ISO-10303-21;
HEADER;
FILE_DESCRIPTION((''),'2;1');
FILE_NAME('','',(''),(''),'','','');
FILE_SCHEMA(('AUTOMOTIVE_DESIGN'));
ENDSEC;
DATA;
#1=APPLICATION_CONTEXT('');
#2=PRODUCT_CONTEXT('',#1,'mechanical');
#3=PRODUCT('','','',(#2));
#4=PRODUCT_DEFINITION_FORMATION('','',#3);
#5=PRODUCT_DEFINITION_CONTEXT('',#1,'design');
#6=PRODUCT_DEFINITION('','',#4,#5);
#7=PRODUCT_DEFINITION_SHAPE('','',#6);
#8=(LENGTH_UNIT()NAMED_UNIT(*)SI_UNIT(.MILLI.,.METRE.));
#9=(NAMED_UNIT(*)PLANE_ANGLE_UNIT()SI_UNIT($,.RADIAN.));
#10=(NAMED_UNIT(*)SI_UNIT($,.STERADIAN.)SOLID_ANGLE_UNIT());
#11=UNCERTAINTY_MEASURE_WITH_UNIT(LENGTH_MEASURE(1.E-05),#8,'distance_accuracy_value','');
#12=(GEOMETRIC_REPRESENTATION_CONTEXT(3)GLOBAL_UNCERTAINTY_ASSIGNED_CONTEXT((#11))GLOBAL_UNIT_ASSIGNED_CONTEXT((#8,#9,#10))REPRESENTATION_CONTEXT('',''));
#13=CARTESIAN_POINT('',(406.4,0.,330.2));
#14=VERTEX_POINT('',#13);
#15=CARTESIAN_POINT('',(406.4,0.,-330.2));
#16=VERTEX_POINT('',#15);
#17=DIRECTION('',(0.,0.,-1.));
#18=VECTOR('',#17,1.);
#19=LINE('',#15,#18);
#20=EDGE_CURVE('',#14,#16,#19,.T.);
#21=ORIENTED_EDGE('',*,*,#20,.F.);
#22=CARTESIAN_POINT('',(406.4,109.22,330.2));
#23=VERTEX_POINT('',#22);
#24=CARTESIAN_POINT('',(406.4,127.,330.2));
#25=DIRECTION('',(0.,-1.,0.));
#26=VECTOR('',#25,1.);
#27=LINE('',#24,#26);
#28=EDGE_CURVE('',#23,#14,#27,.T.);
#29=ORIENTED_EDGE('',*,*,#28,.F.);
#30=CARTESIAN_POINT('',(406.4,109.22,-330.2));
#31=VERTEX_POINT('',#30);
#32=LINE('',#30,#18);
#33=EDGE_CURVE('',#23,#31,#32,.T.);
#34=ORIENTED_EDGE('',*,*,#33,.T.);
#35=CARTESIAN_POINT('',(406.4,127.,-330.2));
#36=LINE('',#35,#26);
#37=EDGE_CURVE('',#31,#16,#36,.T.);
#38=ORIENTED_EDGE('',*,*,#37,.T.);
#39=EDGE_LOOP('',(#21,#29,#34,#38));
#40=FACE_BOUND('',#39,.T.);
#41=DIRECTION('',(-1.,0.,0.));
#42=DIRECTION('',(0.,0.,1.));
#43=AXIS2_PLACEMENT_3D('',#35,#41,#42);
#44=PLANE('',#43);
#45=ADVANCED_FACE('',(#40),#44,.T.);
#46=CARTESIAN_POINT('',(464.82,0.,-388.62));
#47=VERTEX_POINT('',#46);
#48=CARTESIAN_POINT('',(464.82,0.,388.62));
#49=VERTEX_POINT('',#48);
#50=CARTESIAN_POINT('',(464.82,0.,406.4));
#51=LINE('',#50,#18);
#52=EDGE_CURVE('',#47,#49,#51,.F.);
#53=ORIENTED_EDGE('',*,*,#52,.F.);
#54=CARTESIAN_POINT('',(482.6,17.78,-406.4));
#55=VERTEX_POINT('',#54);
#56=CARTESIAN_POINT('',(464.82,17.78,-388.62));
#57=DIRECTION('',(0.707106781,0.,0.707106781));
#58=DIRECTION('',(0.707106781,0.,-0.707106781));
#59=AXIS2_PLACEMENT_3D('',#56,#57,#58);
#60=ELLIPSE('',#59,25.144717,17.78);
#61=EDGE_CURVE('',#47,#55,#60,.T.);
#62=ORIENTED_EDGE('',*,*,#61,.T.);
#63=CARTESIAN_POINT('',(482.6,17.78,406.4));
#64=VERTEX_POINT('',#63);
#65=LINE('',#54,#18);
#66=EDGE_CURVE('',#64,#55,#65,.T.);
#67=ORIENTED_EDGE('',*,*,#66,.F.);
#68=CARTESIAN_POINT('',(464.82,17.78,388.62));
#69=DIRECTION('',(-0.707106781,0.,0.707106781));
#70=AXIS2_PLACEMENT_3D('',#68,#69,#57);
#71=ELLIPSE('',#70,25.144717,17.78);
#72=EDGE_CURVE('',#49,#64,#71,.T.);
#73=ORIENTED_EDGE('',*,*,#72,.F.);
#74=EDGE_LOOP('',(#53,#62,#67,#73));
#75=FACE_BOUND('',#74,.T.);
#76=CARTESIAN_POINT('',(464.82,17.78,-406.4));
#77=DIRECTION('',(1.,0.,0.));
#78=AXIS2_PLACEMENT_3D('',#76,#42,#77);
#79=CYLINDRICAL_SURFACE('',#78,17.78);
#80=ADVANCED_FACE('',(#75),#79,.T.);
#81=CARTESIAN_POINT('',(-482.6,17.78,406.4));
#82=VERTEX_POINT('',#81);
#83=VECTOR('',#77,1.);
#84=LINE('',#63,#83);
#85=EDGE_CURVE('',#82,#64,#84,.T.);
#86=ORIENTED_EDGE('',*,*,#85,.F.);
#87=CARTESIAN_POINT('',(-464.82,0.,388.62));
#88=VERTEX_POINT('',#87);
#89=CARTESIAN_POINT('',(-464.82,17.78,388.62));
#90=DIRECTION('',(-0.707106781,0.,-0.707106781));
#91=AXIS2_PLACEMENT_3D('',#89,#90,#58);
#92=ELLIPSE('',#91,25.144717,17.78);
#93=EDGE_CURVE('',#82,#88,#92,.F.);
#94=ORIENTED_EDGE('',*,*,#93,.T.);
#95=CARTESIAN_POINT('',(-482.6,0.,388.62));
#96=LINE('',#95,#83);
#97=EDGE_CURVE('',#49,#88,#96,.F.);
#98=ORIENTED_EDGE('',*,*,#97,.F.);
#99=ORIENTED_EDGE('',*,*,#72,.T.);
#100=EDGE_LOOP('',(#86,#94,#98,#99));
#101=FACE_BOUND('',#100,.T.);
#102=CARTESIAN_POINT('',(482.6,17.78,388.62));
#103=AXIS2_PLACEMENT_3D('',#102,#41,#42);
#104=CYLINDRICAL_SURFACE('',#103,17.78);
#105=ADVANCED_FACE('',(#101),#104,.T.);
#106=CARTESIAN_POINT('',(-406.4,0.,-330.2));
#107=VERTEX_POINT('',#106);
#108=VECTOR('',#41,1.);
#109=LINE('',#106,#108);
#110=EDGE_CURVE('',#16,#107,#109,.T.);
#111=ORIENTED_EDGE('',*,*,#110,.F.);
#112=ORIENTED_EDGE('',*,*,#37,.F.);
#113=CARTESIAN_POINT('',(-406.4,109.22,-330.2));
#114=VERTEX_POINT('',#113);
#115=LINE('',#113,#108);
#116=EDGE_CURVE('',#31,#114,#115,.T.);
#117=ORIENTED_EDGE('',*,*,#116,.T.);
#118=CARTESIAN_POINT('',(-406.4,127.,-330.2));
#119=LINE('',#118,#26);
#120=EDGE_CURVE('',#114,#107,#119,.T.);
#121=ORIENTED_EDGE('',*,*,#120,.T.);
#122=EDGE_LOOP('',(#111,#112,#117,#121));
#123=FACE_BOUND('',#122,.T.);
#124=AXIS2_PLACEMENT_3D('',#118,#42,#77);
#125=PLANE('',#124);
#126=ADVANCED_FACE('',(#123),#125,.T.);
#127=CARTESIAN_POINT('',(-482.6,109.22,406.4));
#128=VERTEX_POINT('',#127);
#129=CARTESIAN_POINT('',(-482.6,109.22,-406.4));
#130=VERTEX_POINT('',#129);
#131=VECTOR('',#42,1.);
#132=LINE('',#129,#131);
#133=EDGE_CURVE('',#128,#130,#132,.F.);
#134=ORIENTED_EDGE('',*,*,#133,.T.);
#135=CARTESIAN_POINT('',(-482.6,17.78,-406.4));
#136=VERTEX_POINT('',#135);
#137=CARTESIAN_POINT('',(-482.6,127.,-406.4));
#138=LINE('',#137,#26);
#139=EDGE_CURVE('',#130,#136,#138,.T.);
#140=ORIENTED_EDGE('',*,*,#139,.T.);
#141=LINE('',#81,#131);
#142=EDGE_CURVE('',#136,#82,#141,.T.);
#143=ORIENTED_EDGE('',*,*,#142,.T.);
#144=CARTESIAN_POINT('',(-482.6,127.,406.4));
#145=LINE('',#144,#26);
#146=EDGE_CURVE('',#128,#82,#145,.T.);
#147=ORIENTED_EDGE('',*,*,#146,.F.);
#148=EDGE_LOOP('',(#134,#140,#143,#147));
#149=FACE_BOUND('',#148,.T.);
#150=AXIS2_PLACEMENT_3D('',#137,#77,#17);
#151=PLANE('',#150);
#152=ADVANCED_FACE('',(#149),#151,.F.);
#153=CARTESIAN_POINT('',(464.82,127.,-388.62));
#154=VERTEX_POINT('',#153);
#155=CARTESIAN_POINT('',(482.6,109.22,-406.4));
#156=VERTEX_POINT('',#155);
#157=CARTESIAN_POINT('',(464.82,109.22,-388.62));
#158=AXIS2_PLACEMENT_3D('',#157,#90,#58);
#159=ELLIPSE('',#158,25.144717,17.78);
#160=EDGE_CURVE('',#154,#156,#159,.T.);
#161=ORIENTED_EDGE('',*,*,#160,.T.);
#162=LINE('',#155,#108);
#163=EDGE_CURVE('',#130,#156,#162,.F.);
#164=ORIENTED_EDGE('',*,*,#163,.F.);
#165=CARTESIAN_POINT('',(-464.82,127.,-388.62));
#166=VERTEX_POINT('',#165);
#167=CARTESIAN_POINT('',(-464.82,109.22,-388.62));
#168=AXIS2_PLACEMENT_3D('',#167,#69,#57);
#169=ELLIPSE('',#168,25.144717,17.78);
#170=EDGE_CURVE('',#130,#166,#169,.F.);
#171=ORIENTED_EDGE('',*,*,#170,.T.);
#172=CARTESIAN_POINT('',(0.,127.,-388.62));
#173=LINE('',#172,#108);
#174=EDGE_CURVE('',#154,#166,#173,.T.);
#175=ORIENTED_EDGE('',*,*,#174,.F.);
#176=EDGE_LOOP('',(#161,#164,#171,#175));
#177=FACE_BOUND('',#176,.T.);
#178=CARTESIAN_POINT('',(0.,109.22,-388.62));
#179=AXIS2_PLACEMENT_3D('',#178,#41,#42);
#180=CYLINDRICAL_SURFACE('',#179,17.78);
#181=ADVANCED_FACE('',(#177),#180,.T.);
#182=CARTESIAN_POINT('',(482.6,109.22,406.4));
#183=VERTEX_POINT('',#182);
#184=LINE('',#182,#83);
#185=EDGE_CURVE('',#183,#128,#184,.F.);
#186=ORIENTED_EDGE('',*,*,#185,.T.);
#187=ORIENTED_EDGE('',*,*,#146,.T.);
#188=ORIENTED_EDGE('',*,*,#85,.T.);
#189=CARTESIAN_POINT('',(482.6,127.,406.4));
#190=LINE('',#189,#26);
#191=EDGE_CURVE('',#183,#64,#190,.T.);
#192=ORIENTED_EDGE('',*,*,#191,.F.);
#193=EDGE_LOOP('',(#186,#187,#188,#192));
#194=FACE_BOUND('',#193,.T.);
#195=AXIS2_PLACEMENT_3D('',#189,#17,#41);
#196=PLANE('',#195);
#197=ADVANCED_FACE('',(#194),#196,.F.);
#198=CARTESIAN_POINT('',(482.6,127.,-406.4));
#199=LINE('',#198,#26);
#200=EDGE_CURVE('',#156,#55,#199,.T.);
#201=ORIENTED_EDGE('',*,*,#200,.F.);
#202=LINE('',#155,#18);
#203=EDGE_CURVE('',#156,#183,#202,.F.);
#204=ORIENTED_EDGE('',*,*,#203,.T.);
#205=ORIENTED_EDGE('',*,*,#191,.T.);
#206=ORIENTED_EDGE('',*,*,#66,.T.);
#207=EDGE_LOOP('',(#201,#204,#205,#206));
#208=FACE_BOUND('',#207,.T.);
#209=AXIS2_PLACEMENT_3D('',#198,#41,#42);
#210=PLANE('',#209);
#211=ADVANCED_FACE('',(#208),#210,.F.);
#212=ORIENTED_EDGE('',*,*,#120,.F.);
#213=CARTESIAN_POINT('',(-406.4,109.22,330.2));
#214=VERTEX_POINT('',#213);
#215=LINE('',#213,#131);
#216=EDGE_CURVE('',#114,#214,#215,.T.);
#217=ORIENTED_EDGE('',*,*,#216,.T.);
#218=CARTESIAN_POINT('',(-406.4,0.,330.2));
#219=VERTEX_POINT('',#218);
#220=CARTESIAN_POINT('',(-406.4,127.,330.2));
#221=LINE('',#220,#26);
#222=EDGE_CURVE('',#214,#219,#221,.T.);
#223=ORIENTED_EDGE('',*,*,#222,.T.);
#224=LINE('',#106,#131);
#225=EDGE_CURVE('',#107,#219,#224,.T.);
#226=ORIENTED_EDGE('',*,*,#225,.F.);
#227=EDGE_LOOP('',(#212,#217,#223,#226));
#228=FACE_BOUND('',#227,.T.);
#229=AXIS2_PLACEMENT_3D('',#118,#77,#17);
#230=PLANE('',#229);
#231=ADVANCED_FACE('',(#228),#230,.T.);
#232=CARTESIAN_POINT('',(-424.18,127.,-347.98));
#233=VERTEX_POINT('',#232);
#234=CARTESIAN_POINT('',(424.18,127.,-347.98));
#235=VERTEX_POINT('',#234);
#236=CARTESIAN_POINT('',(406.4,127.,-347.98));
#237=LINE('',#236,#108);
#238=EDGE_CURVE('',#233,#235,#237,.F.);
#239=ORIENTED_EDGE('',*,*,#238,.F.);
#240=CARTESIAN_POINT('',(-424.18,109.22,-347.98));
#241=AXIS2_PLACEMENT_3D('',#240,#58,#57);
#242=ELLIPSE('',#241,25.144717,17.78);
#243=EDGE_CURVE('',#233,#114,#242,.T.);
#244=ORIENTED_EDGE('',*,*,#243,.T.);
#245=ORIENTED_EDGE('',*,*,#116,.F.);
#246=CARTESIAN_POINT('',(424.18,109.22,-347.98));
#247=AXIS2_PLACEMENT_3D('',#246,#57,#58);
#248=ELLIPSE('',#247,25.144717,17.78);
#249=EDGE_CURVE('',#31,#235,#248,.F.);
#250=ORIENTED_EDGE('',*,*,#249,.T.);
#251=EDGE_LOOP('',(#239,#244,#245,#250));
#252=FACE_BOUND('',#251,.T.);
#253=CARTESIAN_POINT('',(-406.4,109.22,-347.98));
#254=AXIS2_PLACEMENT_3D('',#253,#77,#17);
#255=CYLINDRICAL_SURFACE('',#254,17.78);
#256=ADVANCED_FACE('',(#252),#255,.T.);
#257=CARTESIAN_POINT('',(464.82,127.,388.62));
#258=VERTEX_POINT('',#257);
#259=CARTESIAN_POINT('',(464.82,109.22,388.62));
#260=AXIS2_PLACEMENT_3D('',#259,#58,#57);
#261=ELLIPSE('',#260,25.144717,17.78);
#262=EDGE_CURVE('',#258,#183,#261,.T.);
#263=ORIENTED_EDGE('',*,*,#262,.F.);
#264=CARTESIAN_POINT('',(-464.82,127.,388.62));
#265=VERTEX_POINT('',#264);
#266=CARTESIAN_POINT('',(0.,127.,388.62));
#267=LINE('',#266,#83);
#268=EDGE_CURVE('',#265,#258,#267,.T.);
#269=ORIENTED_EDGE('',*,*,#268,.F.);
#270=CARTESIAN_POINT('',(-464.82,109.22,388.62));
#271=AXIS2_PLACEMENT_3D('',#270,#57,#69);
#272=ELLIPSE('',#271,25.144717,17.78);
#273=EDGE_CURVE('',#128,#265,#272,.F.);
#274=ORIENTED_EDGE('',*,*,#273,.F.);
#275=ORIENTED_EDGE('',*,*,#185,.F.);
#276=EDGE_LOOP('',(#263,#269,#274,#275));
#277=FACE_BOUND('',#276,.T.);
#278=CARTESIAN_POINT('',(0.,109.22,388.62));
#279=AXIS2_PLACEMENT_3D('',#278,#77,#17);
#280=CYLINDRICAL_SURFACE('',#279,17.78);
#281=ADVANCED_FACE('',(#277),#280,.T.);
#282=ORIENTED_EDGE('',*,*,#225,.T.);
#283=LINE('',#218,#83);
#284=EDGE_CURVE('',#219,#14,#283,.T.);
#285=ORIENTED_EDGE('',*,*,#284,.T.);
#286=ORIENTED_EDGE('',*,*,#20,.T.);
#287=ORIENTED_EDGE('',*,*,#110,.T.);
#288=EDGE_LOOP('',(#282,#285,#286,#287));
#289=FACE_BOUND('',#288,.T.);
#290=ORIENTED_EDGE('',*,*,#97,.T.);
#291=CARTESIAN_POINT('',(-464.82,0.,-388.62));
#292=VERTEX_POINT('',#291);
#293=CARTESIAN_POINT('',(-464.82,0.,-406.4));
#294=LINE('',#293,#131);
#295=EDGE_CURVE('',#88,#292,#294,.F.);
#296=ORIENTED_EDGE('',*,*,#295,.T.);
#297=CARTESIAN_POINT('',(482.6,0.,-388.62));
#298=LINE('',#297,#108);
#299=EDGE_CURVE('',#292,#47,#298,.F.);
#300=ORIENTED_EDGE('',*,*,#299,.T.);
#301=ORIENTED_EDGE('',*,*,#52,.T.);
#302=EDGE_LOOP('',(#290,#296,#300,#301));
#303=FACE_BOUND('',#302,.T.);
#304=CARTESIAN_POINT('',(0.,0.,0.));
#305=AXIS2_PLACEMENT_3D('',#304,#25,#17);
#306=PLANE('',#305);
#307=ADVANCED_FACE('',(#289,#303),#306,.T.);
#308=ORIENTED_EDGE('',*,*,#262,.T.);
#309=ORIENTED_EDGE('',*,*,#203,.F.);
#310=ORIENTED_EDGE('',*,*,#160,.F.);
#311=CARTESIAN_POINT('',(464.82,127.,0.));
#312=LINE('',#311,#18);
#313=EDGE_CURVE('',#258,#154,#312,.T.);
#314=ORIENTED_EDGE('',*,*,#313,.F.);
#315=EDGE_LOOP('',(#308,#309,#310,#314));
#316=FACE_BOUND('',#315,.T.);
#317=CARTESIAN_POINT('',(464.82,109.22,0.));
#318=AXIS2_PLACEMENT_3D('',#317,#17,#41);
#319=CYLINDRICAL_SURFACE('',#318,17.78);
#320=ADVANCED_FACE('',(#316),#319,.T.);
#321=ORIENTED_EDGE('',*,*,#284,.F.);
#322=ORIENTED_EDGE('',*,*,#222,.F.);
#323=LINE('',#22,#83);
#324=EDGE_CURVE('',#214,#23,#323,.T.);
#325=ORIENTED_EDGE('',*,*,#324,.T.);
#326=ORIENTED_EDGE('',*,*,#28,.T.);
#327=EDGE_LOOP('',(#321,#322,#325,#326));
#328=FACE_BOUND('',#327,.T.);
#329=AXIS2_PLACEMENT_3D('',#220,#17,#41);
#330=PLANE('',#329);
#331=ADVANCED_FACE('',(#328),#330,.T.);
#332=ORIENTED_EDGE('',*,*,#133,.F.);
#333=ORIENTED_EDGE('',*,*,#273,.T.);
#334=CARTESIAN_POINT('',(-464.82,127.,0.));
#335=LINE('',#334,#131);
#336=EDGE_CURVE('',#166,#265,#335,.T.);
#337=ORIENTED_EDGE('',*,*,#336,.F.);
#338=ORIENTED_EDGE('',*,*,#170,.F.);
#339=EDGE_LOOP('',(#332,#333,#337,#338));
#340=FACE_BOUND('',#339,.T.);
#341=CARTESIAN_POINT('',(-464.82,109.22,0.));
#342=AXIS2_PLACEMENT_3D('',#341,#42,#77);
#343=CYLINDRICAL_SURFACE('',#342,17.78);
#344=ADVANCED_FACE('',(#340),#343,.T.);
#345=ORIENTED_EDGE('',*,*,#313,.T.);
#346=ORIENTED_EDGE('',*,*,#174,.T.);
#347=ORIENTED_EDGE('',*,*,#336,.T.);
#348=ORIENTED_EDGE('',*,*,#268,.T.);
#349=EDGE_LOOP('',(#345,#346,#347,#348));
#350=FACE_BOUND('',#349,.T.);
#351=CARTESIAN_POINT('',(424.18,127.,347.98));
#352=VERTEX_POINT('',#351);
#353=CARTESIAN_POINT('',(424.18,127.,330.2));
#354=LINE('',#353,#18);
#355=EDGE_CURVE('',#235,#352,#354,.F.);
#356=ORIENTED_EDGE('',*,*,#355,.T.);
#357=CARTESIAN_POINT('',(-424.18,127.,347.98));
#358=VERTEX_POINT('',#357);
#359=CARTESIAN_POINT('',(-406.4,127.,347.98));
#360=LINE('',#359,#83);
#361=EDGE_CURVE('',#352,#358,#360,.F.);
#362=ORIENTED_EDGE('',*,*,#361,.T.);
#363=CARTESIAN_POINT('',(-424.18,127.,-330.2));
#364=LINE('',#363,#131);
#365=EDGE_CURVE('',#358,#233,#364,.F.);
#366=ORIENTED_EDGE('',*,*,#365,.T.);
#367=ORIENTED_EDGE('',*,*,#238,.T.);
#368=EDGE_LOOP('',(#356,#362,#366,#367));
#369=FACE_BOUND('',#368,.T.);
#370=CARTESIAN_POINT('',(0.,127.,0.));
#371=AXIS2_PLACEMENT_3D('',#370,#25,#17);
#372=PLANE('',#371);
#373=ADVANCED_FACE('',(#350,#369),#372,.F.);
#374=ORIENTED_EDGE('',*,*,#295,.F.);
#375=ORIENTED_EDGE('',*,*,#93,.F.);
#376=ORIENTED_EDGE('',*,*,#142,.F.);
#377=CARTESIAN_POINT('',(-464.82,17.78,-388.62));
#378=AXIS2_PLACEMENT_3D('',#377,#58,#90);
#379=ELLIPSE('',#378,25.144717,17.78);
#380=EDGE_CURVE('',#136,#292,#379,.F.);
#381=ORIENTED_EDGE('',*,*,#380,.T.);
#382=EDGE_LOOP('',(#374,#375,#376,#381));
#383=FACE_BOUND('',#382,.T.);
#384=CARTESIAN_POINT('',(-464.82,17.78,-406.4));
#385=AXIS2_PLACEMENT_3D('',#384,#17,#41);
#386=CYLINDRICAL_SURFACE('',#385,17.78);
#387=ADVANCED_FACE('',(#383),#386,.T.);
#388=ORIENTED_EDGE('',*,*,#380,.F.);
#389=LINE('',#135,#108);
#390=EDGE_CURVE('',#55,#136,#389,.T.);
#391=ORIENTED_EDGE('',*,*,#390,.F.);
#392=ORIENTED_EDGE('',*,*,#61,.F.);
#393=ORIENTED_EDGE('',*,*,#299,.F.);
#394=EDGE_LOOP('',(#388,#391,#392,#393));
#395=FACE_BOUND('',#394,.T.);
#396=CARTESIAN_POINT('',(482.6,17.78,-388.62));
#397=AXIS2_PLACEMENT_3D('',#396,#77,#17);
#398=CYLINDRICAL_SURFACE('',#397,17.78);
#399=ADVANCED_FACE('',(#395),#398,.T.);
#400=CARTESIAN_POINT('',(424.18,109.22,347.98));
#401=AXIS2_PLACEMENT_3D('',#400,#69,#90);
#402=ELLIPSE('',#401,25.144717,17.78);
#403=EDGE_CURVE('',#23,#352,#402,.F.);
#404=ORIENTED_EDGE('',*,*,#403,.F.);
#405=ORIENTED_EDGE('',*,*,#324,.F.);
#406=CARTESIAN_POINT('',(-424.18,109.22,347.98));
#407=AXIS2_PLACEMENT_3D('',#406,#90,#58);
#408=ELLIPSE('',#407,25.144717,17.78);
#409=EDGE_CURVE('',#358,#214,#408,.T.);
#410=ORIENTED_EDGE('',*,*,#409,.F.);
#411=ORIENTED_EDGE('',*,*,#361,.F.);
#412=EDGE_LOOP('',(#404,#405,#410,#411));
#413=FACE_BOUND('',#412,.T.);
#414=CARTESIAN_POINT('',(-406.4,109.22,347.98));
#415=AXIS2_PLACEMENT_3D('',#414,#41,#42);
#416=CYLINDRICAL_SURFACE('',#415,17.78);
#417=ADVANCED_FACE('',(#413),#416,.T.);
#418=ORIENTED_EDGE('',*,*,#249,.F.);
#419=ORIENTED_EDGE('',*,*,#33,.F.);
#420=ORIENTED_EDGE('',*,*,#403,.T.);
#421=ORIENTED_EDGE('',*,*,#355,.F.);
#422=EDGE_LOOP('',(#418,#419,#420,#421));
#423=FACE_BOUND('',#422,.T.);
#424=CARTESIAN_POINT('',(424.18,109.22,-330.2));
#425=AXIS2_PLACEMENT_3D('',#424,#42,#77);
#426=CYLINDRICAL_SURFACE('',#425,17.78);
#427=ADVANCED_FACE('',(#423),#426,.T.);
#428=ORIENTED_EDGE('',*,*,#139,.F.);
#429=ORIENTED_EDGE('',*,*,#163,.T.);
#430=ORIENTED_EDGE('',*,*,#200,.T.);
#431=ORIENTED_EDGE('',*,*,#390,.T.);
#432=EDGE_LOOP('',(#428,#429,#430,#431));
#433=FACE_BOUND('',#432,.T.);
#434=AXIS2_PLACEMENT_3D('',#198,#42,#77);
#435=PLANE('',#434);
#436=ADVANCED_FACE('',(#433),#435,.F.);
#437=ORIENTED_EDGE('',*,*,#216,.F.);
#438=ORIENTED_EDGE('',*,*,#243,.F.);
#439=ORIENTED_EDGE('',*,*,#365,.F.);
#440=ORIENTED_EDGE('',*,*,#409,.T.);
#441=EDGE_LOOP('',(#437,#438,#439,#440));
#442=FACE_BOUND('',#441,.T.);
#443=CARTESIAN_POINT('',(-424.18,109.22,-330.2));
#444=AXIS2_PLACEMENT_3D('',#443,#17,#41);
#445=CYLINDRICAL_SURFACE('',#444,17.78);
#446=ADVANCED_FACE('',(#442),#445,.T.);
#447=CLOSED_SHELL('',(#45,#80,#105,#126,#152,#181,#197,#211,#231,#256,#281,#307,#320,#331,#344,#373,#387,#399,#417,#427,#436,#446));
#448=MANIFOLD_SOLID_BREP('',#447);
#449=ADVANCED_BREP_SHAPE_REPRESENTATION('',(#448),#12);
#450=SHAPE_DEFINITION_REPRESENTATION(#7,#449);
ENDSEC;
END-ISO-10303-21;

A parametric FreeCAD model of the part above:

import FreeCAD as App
import Part
import Sketcher

V = App.Vector
Q = App.Units.Quantity


def edges_at(feature, points):
    """Names of the edges that pass closest to the given points."""
    edges = feature.Shape.Edges
    near = lambda p: min(range(len(edges)), key=lambda i: edges[i].distToShape(Part.Vertex(*p))[0])
    return sorted({f"Edge{near(p) + 1}" for p in points})


def add_polygon(sketch, points):
    """Adds a closed chain of lines whose ends are joined by coincident constraints."""
    first, n = sketch.GeometryCount, len(points)
    for a, b in zip(points, points[1:] + points[:1]):
        sketch.addGeometry(Part.LineSegment(App.Vector(*a, 0), App.Vector(*b, 0)), False)
    for i in range(n):
        sketch.addConstraint(Sketcher.Constraint("Coincident", first + i, 2, first + (i + 1) % n, 1))

doc = App.newDocument("Part")
body = doc.addObject("PartDesign::Body", "Body")

sketch1 = doc.addObject("Sketcher::SketchObject", "Sketch")
body.addObject(sketch1)
sketch1.AttachmentSupport = (doc.XZ_Plane, [""])
sketch1.MapMode = "FlatFace"
add_polygon(sketch1, [(-482.6, -406.4), (-482.6, 406.4), (482.6, 406.4), (482.6, -406.4)])
add_polygon(sketch1, [(406.4, 330.2), (-406.4, 330.2), (-406.4, -330.2), (406.4, -330.2)])
sketch1.addConstraint([
    Sketcher.Constraint("Vertical", 0),
    Sketcher.Constraint("Horizontal", 1),
    Sketcher.Constraint("Vertical", 2),
    Sketcher.Constraint("Horizontal", 3),
    Sketcher.Constraint("Horizontal", 4),
    Sketcher.Constraint("Vertical", 5),
    Sketcher.Constraint("Horizontal", 6),
    Sketcher.Constraint("Vertical", 7),
    Sketcher.Constraint("Symmetric", 0, 2, 2, 2, -1, 1),
    Sketcher.Constraint("Symmetric", 4, 2, 6, 2, -1, 1),
    Sketcher.Constraint("Equal", 6, 0),
    Sketcher.Constraint("DistanceX", 1, 1, 1, 2, Q("38 in")),
    Sketcher.Constraint("DistanceX", 4, 2, 4, 1, Q("32 in")),
    Sketcher.Constraint("DistanceY", 5, 2, 5, 1, Q("26 in")),
])
pad1 = doc.addObject("PartDesign::Pad", "Pad")
body.addObject(pad1)
pad1.Profile = sketch1
pad1.Length = Q("5 in")
pad1.Reversed = True
doc.recompute()

fillet = doc.addObject("PartDesign::Fillet", "Fillet")
body.addObject(fillet)
fillet.Base = (pad1, edges_at(pad1, [
    (482.6, 127, 0),
    (406.4, 127, 0),
    (0, 127, -406.4),
    (0, 127, -330.2),
    (-406.4, 127, 0),
    (0, 127, 330.2),
    (-482.6, 127, 0),
    (0, 0, -406.4),
    (482.6, 0, 0),
    (0, 0, 406.4),
    (-482.6, 0, 0),
    (0, 127, 406.4),
]))
fillet.Radius = Q("0.7 in")

doc.recompute()
